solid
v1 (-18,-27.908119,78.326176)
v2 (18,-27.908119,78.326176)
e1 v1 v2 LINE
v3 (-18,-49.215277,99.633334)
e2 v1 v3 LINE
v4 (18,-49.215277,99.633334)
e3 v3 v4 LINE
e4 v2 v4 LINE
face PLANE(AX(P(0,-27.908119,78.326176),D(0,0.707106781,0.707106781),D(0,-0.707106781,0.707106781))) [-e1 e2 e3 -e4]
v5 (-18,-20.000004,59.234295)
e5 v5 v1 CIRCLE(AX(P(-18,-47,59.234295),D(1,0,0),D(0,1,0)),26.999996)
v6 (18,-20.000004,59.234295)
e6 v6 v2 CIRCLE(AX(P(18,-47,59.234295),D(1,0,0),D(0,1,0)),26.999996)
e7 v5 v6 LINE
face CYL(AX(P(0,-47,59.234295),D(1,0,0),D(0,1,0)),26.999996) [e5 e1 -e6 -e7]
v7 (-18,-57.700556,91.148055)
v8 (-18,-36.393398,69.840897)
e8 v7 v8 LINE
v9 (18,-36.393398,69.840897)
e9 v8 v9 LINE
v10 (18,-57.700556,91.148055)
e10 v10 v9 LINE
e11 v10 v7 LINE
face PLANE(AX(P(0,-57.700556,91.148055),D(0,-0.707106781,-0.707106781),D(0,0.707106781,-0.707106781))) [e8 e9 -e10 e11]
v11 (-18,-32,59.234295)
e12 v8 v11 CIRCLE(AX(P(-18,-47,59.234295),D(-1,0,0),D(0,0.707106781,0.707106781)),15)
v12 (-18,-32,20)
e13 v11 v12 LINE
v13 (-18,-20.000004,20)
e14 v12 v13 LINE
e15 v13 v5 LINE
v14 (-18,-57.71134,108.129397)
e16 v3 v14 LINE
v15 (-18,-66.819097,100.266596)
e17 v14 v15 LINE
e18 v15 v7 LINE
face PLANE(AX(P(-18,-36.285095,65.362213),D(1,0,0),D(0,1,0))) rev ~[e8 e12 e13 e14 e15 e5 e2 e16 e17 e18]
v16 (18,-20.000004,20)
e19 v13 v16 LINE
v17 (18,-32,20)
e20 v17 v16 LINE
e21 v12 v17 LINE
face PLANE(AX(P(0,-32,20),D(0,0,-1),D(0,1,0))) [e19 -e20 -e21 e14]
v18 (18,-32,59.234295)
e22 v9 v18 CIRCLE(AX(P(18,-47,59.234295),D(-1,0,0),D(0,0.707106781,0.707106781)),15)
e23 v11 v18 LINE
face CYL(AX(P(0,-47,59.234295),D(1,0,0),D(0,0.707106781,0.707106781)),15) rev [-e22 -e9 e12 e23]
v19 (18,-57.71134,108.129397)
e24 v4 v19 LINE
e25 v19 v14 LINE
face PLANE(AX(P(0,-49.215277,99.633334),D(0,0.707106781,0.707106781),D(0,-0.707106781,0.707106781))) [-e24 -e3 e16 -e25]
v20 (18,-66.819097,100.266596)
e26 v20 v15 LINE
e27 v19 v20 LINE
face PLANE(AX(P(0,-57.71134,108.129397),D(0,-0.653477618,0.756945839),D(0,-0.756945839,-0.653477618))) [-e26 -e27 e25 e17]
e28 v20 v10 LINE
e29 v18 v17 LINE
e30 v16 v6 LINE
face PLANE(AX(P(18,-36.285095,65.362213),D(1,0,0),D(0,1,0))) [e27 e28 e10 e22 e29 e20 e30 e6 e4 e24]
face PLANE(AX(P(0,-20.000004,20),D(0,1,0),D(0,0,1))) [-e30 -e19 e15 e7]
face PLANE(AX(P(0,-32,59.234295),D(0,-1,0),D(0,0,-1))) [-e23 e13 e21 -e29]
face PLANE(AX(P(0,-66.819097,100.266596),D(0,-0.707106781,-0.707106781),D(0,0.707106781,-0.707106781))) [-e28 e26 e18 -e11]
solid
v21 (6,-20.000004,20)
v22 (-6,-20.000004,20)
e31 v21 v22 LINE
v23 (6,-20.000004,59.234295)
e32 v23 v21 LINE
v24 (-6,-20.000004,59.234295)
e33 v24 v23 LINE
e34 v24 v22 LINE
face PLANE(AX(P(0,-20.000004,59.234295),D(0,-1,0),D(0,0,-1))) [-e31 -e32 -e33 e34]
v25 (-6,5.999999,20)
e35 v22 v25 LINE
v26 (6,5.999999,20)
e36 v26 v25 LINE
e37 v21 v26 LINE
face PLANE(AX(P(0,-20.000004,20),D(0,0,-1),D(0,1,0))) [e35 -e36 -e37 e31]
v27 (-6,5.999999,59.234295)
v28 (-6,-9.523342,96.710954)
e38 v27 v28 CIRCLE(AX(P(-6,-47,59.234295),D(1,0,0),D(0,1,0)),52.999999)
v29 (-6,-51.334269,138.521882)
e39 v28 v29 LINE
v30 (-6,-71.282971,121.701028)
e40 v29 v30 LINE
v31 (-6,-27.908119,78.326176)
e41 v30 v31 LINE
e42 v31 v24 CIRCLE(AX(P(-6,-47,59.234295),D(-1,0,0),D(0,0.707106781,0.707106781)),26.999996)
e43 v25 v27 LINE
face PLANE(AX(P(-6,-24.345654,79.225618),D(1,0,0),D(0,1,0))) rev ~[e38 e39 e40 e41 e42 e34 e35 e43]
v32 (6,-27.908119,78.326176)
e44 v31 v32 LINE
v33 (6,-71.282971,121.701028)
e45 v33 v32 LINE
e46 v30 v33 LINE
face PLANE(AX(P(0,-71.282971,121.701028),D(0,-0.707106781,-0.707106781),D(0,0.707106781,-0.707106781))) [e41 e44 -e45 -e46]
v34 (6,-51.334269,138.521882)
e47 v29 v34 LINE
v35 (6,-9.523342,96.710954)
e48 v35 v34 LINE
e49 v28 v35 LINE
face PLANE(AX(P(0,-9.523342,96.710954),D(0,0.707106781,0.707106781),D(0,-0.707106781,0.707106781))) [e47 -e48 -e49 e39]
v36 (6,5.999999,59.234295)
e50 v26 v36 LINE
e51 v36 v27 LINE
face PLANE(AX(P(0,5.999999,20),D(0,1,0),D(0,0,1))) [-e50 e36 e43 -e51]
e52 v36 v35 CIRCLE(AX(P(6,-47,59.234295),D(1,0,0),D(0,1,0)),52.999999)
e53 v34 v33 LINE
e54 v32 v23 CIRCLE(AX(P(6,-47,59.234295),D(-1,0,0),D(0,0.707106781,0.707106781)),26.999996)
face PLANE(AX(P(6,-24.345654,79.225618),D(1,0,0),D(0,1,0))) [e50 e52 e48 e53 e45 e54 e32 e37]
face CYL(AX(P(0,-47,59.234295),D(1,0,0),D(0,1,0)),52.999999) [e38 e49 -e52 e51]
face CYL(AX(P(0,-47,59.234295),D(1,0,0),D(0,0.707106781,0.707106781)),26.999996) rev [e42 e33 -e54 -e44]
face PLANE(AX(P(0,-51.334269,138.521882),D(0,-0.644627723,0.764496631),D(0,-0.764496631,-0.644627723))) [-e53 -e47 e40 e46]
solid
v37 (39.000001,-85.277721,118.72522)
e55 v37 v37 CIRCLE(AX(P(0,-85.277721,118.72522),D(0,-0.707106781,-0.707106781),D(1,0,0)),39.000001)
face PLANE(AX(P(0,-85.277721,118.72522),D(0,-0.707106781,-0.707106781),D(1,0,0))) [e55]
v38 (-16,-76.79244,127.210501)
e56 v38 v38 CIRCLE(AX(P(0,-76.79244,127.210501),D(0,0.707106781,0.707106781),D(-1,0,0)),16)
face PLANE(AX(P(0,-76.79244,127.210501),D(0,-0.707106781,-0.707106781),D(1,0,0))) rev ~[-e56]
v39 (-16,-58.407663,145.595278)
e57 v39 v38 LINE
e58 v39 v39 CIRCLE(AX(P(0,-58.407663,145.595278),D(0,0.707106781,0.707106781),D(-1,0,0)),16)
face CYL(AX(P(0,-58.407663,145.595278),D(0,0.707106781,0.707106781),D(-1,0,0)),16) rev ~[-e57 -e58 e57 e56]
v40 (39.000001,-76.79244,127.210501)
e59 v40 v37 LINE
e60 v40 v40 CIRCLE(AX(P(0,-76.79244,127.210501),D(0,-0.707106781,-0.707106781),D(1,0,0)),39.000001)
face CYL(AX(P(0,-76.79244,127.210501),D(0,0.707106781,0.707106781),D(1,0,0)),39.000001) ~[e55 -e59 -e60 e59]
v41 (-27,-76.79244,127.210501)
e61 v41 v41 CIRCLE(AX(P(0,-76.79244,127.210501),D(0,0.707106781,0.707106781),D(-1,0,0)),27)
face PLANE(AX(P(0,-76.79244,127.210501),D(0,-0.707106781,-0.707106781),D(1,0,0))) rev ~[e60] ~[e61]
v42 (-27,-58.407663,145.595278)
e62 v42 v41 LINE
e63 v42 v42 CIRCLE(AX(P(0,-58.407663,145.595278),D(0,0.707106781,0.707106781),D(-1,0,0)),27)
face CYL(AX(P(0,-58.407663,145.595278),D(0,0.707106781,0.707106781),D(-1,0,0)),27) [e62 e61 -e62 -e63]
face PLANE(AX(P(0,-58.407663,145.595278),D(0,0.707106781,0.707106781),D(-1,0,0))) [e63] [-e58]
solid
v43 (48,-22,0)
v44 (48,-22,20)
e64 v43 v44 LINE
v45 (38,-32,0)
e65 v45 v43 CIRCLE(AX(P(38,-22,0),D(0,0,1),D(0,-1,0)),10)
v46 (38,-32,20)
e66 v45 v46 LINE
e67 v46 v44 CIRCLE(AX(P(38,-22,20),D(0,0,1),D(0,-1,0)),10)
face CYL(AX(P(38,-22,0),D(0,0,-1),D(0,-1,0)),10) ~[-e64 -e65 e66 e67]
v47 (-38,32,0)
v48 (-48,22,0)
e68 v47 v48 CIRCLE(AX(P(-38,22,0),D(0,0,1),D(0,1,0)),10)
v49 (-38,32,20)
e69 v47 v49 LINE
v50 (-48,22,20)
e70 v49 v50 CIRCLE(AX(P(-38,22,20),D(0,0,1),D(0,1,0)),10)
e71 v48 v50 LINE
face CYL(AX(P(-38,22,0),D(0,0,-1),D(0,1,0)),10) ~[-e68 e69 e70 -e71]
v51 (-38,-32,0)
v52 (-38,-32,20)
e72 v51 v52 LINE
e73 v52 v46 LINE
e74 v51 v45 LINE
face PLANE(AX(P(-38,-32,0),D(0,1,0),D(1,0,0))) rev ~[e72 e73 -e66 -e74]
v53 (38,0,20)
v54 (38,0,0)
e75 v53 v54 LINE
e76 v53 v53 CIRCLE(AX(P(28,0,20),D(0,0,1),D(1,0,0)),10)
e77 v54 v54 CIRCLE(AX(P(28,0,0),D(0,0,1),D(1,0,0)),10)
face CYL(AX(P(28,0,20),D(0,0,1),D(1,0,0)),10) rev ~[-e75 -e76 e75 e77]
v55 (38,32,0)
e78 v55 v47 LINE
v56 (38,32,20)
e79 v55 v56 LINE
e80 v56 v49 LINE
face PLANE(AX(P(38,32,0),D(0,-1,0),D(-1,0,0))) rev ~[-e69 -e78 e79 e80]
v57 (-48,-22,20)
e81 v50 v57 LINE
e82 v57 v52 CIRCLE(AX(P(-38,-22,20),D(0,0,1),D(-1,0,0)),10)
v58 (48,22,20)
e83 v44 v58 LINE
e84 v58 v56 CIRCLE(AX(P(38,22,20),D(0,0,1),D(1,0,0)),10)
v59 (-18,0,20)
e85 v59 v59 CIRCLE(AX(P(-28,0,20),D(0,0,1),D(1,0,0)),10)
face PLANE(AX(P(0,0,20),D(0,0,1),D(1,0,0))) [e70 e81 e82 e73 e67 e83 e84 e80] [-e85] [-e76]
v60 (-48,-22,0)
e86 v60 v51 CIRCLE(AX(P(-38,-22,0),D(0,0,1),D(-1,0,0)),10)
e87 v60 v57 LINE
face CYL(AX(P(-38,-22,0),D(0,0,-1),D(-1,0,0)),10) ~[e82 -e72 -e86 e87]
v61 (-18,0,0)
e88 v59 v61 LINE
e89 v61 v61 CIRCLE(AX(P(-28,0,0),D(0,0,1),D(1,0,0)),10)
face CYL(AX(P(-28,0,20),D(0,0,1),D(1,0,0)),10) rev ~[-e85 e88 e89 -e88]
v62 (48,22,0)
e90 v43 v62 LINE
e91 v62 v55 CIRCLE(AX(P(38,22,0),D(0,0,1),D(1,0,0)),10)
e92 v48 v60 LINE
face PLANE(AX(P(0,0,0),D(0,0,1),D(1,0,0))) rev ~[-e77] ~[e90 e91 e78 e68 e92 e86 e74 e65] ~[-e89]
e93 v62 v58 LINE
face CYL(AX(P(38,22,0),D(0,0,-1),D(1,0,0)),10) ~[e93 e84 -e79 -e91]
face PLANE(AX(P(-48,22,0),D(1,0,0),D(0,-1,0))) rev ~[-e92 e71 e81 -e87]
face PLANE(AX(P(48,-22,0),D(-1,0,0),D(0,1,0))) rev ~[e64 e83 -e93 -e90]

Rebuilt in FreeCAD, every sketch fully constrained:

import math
import FreeCAD as App
import Part
import Sketcher
from FreeCAD import Vector
Q = App.Units.Quantity

doc = App.newDocument("Part")
body = doc.addObject("PartDesign::Body", "Body")

sketch1 = doc.addObject("Sketcher::SketchObject", "Sketch")
body.addObject(sketch1)
sketch1.AttachmentSupport = (doc.XY_Plane, [""])
sketch1.MapMode = "FlatFace"
sketch1.addGeometry([
    Part.ArcOfCircle(Part.Circle(Vector(38, 22, 0), Vector(0, 0, 1), 10), math.radians(0), math.radians(90)),
    Part.LineSegment(Vector(38, 32, 0), Vector(-38, 32, 0)),
    Part.ArcOfCircle(Part.Circle(Vector(-38, 22, 0), Vector(0, 0, 1), 10), math.radians(90), math.radians(180)),
    Part.LineSegment(Vector(-48, 22, 0), Vector(-48, -22, 0)),
    Part.ArcOfCircle(Part.Circle(Vector(-38, -22, 0), Vector(0, 0, 1), 10), math.radians(180), math.radians(270)),
    Part.LineSegment(Vector(-38, -32, 0), Vector(38, -32, 0)),
    Part.ArcOfCircle(Part.Circle(Vector(38, -22, 0), Vector(0, 0, 1), 10), math.radians(-90), math.radians(0)),
    Part.LineSegment(Vector(48, -22, 0), Vector(48, 22, 0)),
], False)
sketch1.addConstraint([
    Sketcher.Constraint("Tangent", 0, 2, 1, 1),
    Sketcher.Constraint("Tangent", 1, 2, 2, 1),
    Sketcher.Constraint("Tangent", 2, 2, 3, 1),
    Sketcher.Constraint("Tangent", 3, 2, 4, 1),
    Sketcher.Constraint("Tangent", 4, 2, 5, 1),
    Sketcher.Constraint("Tangent", 5, 2, 6, 1),
    Sketcher.Constraint("Tangent", 6, 2, 7, 1),
    Sketcher.Constraint("Tangent", 7, 2, 0, 1),
    Sketcher.Constraint("Horizontal", 1),
    Sketcher.Constraint("Vertical", 3),
    Sketcher.Constraint("Horizontal", 5),
    Sketcher.Constraint("Vertical", 7),
    Sketcher.Constraint("Equal", 0, 2),
    Sketcher.Constraint("Equal", 2, 4),
    Sketcher.Constraint("Equal", 4, 6),
    Sketcher.Constraint("Symmetric", 0, 3, 4, 3, -1, 1),
    Sketcher.Constraint("Radius", 0, Q("10 mm")),
    Sketcher.Constraint("DistanceX", 1, 2, 1, 1, Q("76 mm")),
    Sketcher.Constraint("DistanceY", 3, 2, 3, 1, Q("44 mm")),
])
pad1 = doc.addObject("PartDesign::Pad", "Pad")
body.addObject(pad1)
pad1.Profile = sketch1
pad1.Length = 20

sketch2 = doc.addObject("Sketcher::SketchObject", "Sketch001")
body.addObject(sketch2)
sketch2.AttachmentSupport = (doc.XY_Plane, [""])
sketch2.MapMode = "FlatFace"
sketch2.AttachmentOffset = App.Placement(Vector(0, 0, 20), App.Rotation())
sketch2.addGeometry([
    Part.Circle(Vector(28, 0, 0), Vector(0, 0, 1), 10),
    Part.Circle(Vector(-28, 0, 0), Vector(0, 0, 1), 10),
], False)
sketch2.addConstraint([
    Sketcher.Constraint("Equal", 0, 1),
    Sketcher.Constraint("Symmetric", 0, 3, 1, 3, -1, 1),
    Sketcher.Constraint("PointOnObject", 0, 3, -1),
    Sketcher.Constraint("Diameter", 0, Q("20 mm")),
    Sketcher.Constraint("DistanceX", -1, 1, 0, 3, Q("28 mm")),
])
pocket1 = doc.addObject("PartDesign::Pocket", "Pocket")
body.addObject(pocket1)
pocket1.Profile = sketch2
pocket1.Length = 20
body2 = doc.addObject("PartDesign::Body", "Body001")

sketch3 = doc.addObject("Sketcher::SketchObject", "Sketch002")
body2.addObject(sketch3)
sketch3.Placement = App.Placement(Vector(0, 43.593807, 43.593807), App.Rotation(Vector(-1, 0, 0), Vector(0, -0.707106781, 0.707106781), Vector(0, 0.707106781, 0.707106781), "ZXY"))
sketch3.addGeometry([
    Part.Circle(Vector(0, 144, 0), Vector(0, 0, 1), 27),
    Part.Circle(Vector(0, 144, 0), Vector(0, 0, 1), 16),
], False)
sketch3.addConstraint([
    Sketcher.Constraint("Coincident", 1, 3, 0, 3),
    Sketcher.Constraint("PointOnObject", 0, 3, -2),
    Sketcher.Constraint("Diameter", 0, Q("54 mm")),
    Sketcher.Constraint("Diameter", 1, Q("32 mm")),
    Sketcher.Constraint("DistanceY", -1, 1, 0, 3, Q("144.251863 mm")),
])
pad2 = doc.addObject("PartDesign::Pad", "Pad001")
body2.addObject(pad2)
pad2.Profile = sketch3
pad2.Length = 26
pad2.Reversed = True

sketch4 = doc.addObject("Sketcher::SketchObject", "Sketch003")
body2.addObject(sketch4)
sketch4.Placement = App.Placement(Vector(0, 25.209031, 25.209031), App.Rotation(Vector(1, 0, 0), Vector(0, -0.707106781, 0.707106781), Vector(0, -0.707106781, -0.707106781), "ZXY"))
sketch4.addGeometry(Part.Circle(Vector(0, 144, 0), Vector(0, 0, 1), 39), False)
sketch4.addConstraint([
    Sketcher.Constraint("PointOnObject", 0, 3, -2),
    Sketcher.Constraint("Diameter", 0, Q("78.000002 mm")),
    Sketcher.Constraint("DistanceY", -1, 1, 0, 3, Q("144.251863 mm")),
])
pad3 = doc.addObject("PartDesign::Pad", "Pad002")
body2.addObject(pad3)
pad3.Profile = sketch4
pad3.Length = 12
body3 = doc.addObject("PartDesign::Body", "Body002")

sketch5 = doc.addObject("Sketcher::SketchObject", "Sketch004")
body3.addObject(sketch5)
sketch5.AttachmentSupport = (doc.getObject("YZ_Plane002"), [""])
sketch5.MapMode = "FlatFace"
sketch5.addGeometry([
    Part.LineSegment(Vector(-58, 91, 0), Vector(-36, 70, 0)),
    Part.ArcOfCircle(Part.Circle(Vector(-47, 59, 0), Vector(0, 0, 1), 15), math.radians(0), math.radians(45)),
    Part.LineSegment(Vector(-32, 59, 0), Vector(-32, 20, 0)),
    Part.LineSegment(Vector(-32, 20, 0), Vector(-20, 20, 0)),
    Part.LineSegment(Vector(-20, 20, 0), Vector(-20, 59, 0)),
    Part.ArcOfCircle(Part.Circle(Vector(-47, 59, 0), Vector(0, 0, 1), 27), math.radians(0), math.radians(45)),
    Part.LineSegment(Vector(-28, 78, 0), Vector(-49, 100, 0)),
    Part.LineSegment(Vector(-49, 100, 0), Vector(-58, 108, 0)),
    Part.LineSegment(Vector(-58, 108, 0), Vector(-67, 100, 0)),
    Part.LineSegment(Vector(-67, 100, 0), Vector(-58, 91, 0)),
], False)
sketch5.addConstraint([
    Sketcher.Constraint("Tangent", 0, 2, 1, 2),
    Sketcher.Constraint("Tangent", 1, 1, 2, 1),
    Sketcher.Constraint("Coincident", 2, 2, 3, 1),
    Sketcher.Constraint("Coincident", 3, 2, 4, 1),
    Sketcher.Constraint("Tangent", 4, 2, 5, 1),
    Sketcher.Constraint("Tangent", 5, 2, 6, 1),
    Sketcher.Constraint("Coincident", 6, 2, 7, 1),
    Sketcher.Constraint("Coincident", 7, 2, 8, 1),
    Sketcher.Constraint("Coincident", 8, 2, 9, 1),
    Sketcher.Constraint("Coincident", 9, 2, 0, 1),
    Sketcher.Constraint("Vertical", 2),
    Sketcher.Constraint("Horizontal", 3),
    Sketcher.Constraint("Vertical", 4),
    Sketcher.Constraint("Coincident", 5, 3, 1, 3),
    Sketcher.Constraint("Parallel", 0, 6),
    Sketcher.Constraint("Parallel", 6, 7),
    Sketcher.Constraint("Parallel", 7, 9),
    Sketcher.Constraint("Equal", 0, 6),
    Sketcher.Constraint("Radius", 1, Q("15 mm")),
    Sketcher.Constraint("Angle", 0, Q("-45 deg")),
    Sketcher.Constraint("DistanceX", 1, 3, -1, 1, Q("47 mm")),
    Sketcher.Constraint("DistanceY", -1, 1, 2, 2, Q("20 mm")),
    Sketcher.Constraint("Radius", 5, Q("26.999996 mm")),
    Sketcher.Constraint("DistanceY", 0, 2, 7, 2, Q("38.2885 mm")),
    Sketcher.Constraint("DistanceY", 8, 2, 7, 2, Q("7.862801 mm")),
    Sketcher.Constraint("Distance", 0, Q("30.132871 mm")),
    Sketcher.Constraint("DistanceY", 2, 2, 2, 1, Q("39.234295 mm")),
])
pad4 = doc.addObject("PartDesign::Pad", "Pad003")
body3.addObject(pad4)
pad4.Profile = sketch5
pad4.Type = "TwoLengths"
pad4.Length = 18
pad4.Length2 = 18
body4 = doc.addObject("PartDesign::Body", "Body003")

sketch6 = doc.addObject("Sketcher::SketchObject", "Sketch005")
body4.addObject(sketch6)
sketch6.AttachmentSupport = (doc.getObject("YZ_Plane003"), [""])
sketch6.MapMode = "FlatFace"
sketch6.addGeometry([
    Part.ArcOfCircle(Part.Circle(Vector(-47, 59, 0), Vector(0, 0, 1), 53), math.radians(0), math.radians(45)),
    Part.LineSegment(Vector(-10, 97, 0), Vector(-51, 139, 0)),
    Part.LineSegment(Vector(-51, 139, 0), Vector(-71, 122, 0)),
    Part.LineSegment(Vector(-71, 122, 0), Vector(-28, 78, 0)),
    Part.ArcOfCircle(Part.Circle(Vector(-47, 59, 0), Vector(0, 0, 1), 27), math.radians(0), math.radians(45)),
    Part.LineSegment(Vector(-20, 59, 0), Vector(-20, 20, 0)),
    Part.LineSegment(Vector(-20, 20, 0), Vector(6, 20, 0)),
    Part.LineSegment(Vector(6, 20, 0), Vector(6, 59, 0)),
], False)
sketch6.addConstraint([
    Sketcher.Constraint("Tangent", 0, 2, 1, 1),
    Sketcher.Constraint("Coincident", 1, 2, 2, 1),
    Sketcher.Constraint("Coincident", 2, 2, 3, 1),
    Sketcher.Constraint("Tangent", 3, 2, 4, 2),
    Sketcher.Constraint("Tangent", 4, 1, 5, 1),
    Sketcher.Constraint("Coincident", 5, 2, 6, 1),
    Sketcher.Constraint("Coincident", 6, 2, 7, 1),
    Sketcher.Constraint("Tangent", 7, 2, 0, 1),
    Sketcher.Constraint("Vertical", 5),
    Sketcher.Constraint("Horizontal", 6),
    Sketcher.Constraint("Vertical", 7),
    Sketcher.Constraint("Coincident", 4, 3, 0, 3),
    Sketcher.Constraint("Parallel", 1, 3),
    Sketcher.Constraint("Radius", 0, Q("52.999999 mm")),
    Sketcher.Constraint("Angle", 1, Q("135 deg")),
    Sketcher.Constraint("DistanceX", 0, 3, -1, 1, Q("47 mm")),
    Sketcher.Constraint("DistanceY", -1, 1, 5, 2, Q("20 mm")),
    Sketcher.Constraint("Radius", 4, Q("26.999996 mm")),
    Sketcher.Constraint("DistanceX", 2, 2, 1, 2, Q("19.948702 mm")),
    Sketcher.Constraint("Distance", 1, Q("59.129581 mm")),
    Sketcher.Constraint("DistanceY", 5, 2, 5, 1, Q("39.234295 mm")),
])
pad5 = doc.addObject("PartDesign::Pad", "Pad004")
body4.addObject(pad5)
pad5.Profile = sketch6
pad5.Type = "TwoLengths"
pad5.Length = 6
pad5.Length2 = 6

doc.recompute()
